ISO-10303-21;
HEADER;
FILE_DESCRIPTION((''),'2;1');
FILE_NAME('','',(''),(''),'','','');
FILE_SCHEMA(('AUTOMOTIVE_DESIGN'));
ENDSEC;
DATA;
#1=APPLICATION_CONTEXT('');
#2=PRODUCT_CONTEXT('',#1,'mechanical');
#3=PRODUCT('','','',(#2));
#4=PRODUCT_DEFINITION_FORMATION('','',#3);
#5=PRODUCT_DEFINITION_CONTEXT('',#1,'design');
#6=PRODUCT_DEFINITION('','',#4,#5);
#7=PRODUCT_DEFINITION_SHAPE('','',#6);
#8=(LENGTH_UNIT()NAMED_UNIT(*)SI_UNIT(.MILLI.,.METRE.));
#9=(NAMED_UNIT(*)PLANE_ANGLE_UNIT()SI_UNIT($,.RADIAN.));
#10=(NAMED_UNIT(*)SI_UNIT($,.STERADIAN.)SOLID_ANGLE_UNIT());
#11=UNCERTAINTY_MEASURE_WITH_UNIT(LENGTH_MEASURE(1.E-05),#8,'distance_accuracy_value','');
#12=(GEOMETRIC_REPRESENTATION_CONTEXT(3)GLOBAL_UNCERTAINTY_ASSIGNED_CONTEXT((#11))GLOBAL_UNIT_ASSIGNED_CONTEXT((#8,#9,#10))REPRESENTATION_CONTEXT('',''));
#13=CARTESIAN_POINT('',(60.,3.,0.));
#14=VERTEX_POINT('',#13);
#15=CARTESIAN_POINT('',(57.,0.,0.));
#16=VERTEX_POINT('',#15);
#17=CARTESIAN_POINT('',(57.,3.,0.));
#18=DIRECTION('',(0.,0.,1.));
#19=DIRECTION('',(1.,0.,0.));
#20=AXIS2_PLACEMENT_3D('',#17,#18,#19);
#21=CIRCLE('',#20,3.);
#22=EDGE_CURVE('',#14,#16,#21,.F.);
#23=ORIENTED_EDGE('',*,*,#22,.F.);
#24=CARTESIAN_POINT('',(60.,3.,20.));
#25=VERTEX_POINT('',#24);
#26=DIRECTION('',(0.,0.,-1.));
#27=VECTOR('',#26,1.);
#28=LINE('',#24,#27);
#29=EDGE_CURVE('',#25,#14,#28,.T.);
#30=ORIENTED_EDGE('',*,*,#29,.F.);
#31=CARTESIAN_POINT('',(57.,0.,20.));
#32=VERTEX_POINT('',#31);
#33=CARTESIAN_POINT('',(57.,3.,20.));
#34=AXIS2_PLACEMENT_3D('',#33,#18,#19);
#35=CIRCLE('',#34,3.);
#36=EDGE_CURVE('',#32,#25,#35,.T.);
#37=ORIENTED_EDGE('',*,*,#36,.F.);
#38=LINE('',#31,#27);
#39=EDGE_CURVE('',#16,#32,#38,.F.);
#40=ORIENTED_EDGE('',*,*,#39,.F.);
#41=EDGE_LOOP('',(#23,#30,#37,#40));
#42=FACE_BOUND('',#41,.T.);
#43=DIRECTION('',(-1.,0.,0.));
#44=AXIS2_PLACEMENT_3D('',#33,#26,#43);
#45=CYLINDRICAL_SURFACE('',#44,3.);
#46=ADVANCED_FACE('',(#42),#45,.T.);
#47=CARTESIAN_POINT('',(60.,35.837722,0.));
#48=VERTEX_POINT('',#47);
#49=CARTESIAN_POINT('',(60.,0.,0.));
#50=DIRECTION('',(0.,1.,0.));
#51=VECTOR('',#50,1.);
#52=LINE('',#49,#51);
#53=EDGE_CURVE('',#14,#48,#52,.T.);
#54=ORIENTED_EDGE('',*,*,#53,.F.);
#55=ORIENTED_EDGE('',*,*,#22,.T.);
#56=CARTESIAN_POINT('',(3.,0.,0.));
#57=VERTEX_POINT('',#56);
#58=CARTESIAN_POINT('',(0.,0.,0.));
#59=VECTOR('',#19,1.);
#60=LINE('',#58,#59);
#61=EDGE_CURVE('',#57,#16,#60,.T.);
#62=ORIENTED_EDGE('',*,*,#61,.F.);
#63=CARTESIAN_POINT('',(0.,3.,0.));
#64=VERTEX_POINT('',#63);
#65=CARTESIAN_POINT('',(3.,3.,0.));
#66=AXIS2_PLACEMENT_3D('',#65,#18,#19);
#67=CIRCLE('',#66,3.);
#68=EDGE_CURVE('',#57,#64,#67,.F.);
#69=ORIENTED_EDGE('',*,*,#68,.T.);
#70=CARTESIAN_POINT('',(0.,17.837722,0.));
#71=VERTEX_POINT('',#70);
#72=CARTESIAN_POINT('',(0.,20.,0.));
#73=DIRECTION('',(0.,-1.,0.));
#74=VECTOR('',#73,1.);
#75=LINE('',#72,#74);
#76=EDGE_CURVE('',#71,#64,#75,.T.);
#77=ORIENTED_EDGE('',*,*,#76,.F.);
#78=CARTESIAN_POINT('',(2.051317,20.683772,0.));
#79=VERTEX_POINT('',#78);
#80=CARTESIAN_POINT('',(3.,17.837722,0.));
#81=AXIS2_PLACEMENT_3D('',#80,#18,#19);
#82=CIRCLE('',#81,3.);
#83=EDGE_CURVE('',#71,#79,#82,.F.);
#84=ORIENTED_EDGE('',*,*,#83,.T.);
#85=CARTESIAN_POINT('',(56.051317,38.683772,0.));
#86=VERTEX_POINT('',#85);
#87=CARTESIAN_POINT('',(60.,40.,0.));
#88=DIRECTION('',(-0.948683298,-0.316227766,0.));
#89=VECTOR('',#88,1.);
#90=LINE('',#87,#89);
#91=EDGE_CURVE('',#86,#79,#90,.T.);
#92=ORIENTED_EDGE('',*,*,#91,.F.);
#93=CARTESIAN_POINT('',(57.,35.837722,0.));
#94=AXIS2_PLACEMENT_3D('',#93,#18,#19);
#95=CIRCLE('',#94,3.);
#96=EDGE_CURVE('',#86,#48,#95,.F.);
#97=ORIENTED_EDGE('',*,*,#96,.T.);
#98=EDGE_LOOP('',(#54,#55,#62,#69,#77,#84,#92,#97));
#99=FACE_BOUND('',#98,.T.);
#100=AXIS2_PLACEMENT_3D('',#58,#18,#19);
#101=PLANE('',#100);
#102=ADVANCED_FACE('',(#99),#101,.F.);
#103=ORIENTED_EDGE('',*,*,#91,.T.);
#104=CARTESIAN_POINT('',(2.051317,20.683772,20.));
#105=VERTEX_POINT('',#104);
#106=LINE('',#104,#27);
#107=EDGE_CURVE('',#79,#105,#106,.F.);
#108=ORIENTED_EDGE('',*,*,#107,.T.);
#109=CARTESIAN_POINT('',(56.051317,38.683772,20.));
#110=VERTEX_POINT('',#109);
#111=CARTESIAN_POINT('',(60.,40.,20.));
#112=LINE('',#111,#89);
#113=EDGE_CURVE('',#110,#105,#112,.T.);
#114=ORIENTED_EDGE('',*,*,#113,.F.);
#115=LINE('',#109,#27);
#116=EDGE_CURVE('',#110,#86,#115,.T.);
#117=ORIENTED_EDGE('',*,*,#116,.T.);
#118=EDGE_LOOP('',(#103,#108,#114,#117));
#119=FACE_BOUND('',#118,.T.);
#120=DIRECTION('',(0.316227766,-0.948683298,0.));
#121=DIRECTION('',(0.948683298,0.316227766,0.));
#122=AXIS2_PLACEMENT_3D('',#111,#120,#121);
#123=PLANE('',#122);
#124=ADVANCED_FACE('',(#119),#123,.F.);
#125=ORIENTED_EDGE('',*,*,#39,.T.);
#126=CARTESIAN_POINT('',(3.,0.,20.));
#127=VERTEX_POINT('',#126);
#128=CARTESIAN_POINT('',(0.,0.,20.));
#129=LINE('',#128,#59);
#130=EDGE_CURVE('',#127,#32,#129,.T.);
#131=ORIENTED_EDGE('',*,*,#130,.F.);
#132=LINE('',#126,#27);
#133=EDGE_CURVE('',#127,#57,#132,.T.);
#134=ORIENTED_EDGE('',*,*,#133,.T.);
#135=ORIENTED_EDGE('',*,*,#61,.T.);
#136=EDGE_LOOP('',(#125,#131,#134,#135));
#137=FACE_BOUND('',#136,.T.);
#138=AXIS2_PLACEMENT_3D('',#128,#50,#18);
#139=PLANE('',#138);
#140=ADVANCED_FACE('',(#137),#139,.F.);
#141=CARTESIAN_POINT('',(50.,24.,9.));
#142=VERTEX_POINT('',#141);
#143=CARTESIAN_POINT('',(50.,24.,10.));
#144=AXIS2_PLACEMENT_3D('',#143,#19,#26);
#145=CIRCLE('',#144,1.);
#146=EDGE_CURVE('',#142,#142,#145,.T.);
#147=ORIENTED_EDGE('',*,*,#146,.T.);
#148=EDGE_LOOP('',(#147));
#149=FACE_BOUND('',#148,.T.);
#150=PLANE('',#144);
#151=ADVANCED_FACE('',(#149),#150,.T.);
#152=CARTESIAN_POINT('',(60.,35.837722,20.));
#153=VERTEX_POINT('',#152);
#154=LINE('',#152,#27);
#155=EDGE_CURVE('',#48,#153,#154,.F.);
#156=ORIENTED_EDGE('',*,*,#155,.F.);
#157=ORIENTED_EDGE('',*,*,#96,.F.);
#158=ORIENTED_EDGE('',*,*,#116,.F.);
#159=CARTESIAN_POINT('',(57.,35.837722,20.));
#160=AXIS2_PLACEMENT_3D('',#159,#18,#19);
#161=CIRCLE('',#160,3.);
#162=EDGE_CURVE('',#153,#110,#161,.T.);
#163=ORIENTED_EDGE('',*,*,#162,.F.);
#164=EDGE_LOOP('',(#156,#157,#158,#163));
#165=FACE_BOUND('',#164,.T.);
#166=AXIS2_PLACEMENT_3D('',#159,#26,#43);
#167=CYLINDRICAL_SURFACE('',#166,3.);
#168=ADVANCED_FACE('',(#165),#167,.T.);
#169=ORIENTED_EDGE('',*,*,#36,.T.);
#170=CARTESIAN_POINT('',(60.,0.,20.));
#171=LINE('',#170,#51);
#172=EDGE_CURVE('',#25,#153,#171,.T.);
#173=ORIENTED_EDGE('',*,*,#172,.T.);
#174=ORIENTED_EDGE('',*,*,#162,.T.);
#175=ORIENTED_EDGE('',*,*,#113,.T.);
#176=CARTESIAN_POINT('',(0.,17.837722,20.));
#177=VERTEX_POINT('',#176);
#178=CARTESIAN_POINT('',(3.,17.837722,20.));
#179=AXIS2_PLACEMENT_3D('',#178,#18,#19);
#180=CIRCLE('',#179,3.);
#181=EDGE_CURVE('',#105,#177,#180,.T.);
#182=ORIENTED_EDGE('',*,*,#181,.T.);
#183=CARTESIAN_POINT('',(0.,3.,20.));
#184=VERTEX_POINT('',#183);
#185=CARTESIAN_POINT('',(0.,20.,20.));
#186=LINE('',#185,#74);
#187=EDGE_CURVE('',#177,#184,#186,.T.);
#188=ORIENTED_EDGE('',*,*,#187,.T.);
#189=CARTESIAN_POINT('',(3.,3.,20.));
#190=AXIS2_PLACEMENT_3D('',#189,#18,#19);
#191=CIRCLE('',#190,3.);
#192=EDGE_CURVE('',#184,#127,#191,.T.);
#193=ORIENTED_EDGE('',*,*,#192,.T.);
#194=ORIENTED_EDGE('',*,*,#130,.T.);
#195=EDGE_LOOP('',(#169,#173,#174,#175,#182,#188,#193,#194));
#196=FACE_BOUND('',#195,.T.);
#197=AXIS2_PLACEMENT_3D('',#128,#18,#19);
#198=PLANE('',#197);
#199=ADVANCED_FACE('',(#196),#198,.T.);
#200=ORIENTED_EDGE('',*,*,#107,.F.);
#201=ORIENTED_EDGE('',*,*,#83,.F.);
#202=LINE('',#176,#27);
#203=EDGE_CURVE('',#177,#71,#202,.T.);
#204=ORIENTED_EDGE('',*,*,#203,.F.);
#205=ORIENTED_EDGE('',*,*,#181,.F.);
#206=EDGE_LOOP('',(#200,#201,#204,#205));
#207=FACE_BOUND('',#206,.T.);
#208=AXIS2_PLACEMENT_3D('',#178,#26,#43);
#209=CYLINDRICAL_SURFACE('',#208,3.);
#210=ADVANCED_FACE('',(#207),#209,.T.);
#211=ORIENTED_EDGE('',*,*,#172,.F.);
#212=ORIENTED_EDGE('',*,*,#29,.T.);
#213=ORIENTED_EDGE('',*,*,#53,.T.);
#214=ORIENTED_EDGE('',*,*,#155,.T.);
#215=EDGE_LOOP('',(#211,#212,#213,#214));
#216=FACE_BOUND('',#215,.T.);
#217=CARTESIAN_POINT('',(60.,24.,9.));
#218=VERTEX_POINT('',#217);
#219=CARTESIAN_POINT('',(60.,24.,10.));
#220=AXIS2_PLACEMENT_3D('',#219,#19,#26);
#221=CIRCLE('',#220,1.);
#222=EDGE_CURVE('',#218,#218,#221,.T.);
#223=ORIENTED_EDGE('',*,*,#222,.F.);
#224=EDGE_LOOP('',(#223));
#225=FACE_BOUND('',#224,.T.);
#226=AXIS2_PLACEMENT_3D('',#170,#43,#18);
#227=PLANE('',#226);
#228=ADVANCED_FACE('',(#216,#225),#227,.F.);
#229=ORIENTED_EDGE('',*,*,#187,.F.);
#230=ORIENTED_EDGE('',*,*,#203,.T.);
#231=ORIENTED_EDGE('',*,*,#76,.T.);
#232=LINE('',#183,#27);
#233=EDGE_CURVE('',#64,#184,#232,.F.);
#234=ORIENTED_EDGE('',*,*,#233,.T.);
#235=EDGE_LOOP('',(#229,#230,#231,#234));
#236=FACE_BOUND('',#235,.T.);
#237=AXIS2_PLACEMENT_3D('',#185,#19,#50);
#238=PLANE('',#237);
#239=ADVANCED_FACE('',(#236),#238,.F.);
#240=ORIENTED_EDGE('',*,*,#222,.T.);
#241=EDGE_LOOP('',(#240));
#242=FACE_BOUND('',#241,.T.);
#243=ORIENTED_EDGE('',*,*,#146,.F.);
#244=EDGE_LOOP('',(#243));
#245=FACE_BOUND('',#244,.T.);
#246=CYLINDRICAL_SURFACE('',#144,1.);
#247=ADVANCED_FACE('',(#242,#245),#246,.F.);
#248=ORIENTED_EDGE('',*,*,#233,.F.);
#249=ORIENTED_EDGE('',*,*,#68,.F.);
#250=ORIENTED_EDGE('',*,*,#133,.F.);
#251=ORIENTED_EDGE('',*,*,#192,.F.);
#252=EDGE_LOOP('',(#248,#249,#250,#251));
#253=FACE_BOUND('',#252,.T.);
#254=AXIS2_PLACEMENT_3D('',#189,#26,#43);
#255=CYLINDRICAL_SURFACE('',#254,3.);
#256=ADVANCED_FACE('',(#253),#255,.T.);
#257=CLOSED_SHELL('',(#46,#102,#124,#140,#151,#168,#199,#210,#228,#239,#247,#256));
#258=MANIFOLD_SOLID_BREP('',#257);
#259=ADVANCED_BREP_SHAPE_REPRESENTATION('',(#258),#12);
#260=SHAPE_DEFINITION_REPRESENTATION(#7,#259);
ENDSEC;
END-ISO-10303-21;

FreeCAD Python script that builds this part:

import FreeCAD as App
import Part
import Sketcher

V = App.Vector
Q = App.Units.Quantity


def edges_at(feature, points):
    """Names of the edges that pass closest to the given points."""
    edges = feature.Shape.Edges
    near = lambda p: min(range(len(edges)), key=lambda i: edges[i].distToShape(Part.Vertex(*p))[0])
    return sorted({f"Edge{near(p) + 1}" for p in points})

doc = App.newDocument("Part")
body = doc.addObject("PartDesign::Body", "Body")

# Sketch on XY plane
sketch1 = body.newObject("Sketcher::SketchObject", "Sketch")
sketch1.AttachmentSupport = (doc.getObject("XY_Plane"), [""])
sketch1.MapMode = "FlatFace"
sketch1.addGeometry([
    Part.LineSegment(V(0, 0, 0), V(60, 0, 0)),
    Part.LineSegment(V(60, 0, 0), V(60, 40, 0)),
    Part.LineSegment(V(60, 40, 0), V(0, 20, 0)),
    Part.LineSegment(V(0, 20, 0), V(0, 0, 0)),
], False)
sketch1.addConstraint([
    Sketcher.Constraint("Coincident", 0, 2, 1, 1),
    Sketcher.Constraint("Coincident", 1, 2, 2, 1),
    Sketcher.Constraint("Coincident", 2, 2, 3, 1),
    Sketcher.Constraint("Coincident", 3, 2, 0, 1),
    Sketcher.Constraint("Horizontal", 0),
    Sketcher.Constraint("Vertical", 1),
    Sketcher.Constraint("Vertical", 3),
    Sketcher.Constraint("Coincident", 3, 2, -1, 1),
    Sketcher.Constraint("DistanceX", 0, 1, 0, 2, Q("60 mm")),
    Sketcher.Constraint("DistanceY", 1, 1, 1, 2, Q("40 mm")),
    Sketcher.Constraint("DistanceY", 3, 2, 3, 1, Q("20 mm")),
])
pad1 = body.newObject("PartDesign::Pad", "Pad")
pad1.Profile = sketch1
pad1.Length = 20
doc.recompute()

fillet = body.newObject("PartDesign::Fillet", "Fillet")
fillet.Base = (pad1, edges_at(pad1, [
    (0, 20, 10),
    (60, 40, 10),
    (60, 0, 10),
    (0, 0, 10),
]))
fillet.Radius = 3

# Sketch on YZ plane
sketch2 = body.newObject("Sketcher::SketchObject", "Sketch001")
sketch2.AttachmentSupport = (doc.getObject("YZ_Plane"), [""])
sketch2.MapMode = "FlatFace"
sketch2.AttachmentOffset = App.Placement(V(0, 0, 60), App.Rotation())
sketch2.addGeometry(Part.Circle(V(24, 10, 0), V(0, 0, 1), 1), False)
sketch2.addConstraint([
    Sketcher.Constraint("Diameter", 0, Q("2 mm")),
    Sketcher.Constraint("DistanceX", -1, 1, 0, 3, Q("24 mm")),
    Sketcher.Constraint("DistanceY", -1, 1, 0, 3, Q("10 mm")),
])
pocket1 = body.newObject("PartDesign::Pocket", "Pocket")
pocket1.Profile = sketch2
pocket1.Length = 10

doc.recompute()
